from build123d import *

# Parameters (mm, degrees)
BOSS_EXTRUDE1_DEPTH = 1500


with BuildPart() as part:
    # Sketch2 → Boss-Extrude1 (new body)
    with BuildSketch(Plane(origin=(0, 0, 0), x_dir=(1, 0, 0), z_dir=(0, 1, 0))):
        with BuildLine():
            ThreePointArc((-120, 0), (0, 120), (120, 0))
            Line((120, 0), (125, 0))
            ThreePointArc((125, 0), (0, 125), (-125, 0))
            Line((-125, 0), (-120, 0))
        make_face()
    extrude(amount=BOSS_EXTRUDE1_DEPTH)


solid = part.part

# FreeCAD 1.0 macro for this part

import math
import FreeCAD as App
import Part
import Sketcher
from FreeCAD import Vector

doc = App.newDocument("Part")
params = doc.addObject("Spreadsheet::Sheet", "Params")
for row, (alias, value) in enumerate([
    ("sketch1_radius", "120 mm"),
    ("sketch1_radius2", "125 mm"),
    ("pad1_length", "1500 mm"),
], start=1):
    params.set(f"A{row}", alias)
    params.set(f"B{row}", "=" + value)
    params.setAlias(f"B{row}", alias)

body = doc.addObject("PartDesign::Body", "Body")

# Sketch on XZ plane
sketch1 = body.newObject("Sketcher::SketchObject", "Sketch")
sketch1.AttachmentSupport = (doc.getObject("XZ_Plane"), [""])
sketch1.MapMode = "FlatFace"
sketch1.addGeometry([
    Part.ArcOfCircle(Part.Circle(Vector(0, 0, 0), Vector(0, 0, 1), 120), math.radians(180), math.radians(360)),
    Part.LineSegment(Vector(120, 0, 0), Vector(125, 0, 0)),
    Part.ArcOfCircle(Part.Circle(Vector(0, 0, 0), Vector(0, 0, 1), 125), math.radians(180), math.radians(360)),
    Part.LineSegment(Vector(-125, 0, 0), Vector(-120, 0, 0)),
], False)
sketch1.addConstraint([
    Sketcher.Constraint("Coincident", 0, 2, 1, 1),
    Sketcher.Constraint("Coincident", 1, 2, 2, 2),
    Sketcher.Constraint("Coincident", 2, 1, 3, 1),
    Sketcher.Constraint("Coincident", 3, 2, 0, 1),
    Sketcher.Constraint("Horizontal", 1),
    Sketcher.Constraint("Horizontal", 3),
    Sketcher.Constraint("Coincident", 0, 3, -1, 1),
    Sketcher.Constraint("Coincident", 2, 3, -1, 1),
    Sketcher.Constraint("PointOnObject", 0, 2, -1),
    Sketcher.Constraint("PointOnObject", 2, 1, -1),
    Sketcher.Constraint("Radius", 0, 120.0),
    Sketcher.Constraint("Radius", 2, 125.0),
])
sketch1.setExpression("Constraints[10]", "Params.sketch1_radius")
sketch1.setExpression("Constraints[11]", "Params.sketch1_radius2")
pad1 = body.newObject("PartDesign::Pad", "Pad")
pad1.Profile = sketch1
pad1.setExpression("Length", "Params.pad1_length")
pad1.Reversed = True

doc.recompute()
